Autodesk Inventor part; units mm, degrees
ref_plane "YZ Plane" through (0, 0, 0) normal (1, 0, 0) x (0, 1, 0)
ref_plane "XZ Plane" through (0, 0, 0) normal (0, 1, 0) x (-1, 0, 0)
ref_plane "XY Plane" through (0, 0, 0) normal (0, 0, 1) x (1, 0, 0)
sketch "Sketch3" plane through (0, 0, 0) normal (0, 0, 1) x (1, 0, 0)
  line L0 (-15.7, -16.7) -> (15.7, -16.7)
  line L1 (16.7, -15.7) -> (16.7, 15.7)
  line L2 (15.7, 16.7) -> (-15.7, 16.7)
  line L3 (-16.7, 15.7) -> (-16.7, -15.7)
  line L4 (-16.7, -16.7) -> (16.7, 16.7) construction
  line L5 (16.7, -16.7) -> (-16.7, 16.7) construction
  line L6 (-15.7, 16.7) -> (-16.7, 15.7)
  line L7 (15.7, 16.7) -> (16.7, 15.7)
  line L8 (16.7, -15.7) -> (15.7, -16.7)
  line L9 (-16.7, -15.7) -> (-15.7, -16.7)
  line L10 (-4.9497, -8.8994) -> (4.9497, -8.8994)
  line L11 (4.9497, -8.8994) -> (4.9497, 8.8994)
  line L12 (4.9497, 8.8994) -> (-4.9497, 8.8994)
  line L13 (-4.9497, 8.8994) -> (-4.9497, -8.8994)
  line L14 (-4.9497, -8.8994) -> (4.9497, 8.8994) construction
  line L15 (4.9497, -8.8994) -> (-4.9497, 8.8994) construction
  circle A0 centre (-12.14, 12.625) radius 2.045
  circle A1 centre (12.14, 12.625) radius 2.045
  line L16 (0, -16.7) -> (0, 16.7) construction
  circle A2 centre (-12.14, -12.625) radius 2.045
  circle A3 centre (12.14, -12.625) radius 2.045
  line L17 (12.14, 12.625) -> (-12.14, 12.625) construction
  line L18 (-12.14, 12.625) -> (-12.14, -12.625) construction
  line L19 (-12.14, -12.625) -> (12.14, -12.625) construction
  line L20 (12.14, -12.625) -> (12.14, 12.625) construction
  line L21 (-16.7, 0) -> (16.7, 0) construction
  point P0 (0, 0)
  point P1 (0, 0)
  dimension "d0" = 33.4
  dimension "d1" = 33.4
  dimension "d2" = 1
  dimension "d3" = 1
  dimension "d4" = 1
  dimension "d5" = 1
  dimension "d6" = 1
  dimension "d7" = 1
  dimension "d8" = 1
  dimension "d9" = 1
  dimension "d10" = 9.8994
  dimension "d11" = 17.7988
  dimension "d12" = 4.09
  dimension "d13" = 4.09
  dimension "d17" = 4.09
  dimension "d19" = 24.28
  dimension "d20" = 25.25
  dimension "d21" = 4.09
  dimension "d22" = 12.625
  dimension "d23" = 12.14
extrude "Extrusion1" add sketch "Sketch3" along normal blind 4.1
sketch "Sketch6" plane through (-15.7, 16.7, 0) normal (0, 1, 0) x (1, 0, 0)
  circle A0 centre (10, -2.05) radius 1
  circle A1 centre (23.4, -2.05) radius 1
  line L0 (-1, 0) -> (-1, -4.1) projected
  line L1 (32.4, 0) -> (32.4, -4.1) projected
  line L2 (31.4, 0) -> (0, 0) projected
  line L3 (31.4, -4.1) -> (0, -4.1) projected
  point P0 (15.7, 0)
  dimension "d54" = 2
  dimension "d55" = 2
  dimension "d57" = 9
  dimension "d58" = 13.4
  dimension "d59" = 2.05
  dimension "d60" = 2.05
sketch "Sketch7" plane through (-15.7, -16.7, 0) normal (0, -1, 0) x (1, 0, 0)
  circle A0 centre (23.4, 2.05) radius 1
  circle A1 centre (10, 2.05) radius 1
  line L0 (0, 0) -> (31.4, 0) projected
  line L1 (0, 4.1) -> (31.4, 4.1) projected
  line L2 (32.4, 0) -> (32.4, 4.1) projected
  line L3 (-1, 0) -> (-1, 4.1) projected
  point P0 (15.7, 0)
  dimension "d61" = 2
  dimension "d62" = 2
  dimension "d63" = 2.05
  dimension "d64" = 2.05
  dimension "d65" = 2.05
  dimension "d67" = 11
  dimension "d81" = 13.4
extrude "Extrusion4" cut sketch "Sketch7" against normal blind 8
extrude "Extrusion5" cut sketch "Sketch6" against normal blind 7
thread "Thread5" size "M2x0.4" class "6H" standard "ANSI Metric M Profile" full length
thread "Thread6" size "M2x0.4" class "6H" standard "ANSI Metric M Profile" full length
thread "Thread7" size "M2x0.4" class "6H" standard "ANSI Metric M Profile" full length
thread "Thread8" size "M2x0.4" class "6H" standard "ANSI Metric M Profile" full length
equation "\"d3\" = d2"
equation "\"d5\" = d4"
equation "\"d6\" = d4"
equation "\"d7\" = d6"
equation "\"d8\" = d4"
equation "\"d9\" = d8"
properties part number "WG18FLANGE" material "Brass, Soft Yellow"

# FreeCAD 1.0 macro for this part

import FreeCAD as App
import Part
import Sketcher

V = App.Vector
Q = App.Units.Quantity


def add_polygon(sketch, points):
    """Adds a closed chain of lines whose ends are joined by coincident constraints."""
    first, n = sketch.GeometryCount, len(points)
    for a, b in zip(points, points[1:] + points[:1]):
        sketch.addGeometry(Part.LineSegment(App.Vector(*a, 0), App.Vector(*b, 0)), False)
    for i in range(n):
        sketch.addConstraint(Sketcher.Constraint("Coincident", first + i, 2, first + (i + 1) % n, 1))

doc = App.newDocument("Part")
body = doc.addObject("PartDesign::Body", "Body")

# Sketch on XY plane
sketch1 = body.newObject("Sketcher::SketchObject", "Sketch")
sketch1.AttachmentSupport = (doc.getObject("XY_Plane"), [""])
sketch1.MapMode = "FlatFace"
add_polygon(sketch1, [(-16.7, -15.7), (-15.7, -16.7), (15.7, -16.7), (16.7, -15.7), (16.7, 15.7), (15.7, 16.7), (-15.7, 16.7), (-16.7, 15.7)])  # lines 0-7
sketch1.addGeometry(Part.Circle(V(-12.1, -12.6, 0), V(0, 0, 1), 2), False)  # 8
sketch1.addGeometry(Part.Circle(V(12.1, -12.6, 0), V(0, 0, 1), 2), False)  # 9
sketch1.addGeometry(Part.Circle(V(-12.1, 12.6, 0), V(0, 0, 1), 2), False)  # 10
add_polygon(sketch1, [(4.9, -8.9), (-4.9, -8.9), (-4.9, 8.9), (4.9, 8.9)])  # lines 11-14
sketch1.addGeometry(Part.Circle(V(12.1, 12.6, 0), V(0, 0, 1), 2), False)  # 15
sketch1.addConstraint([
    Sketcher.Constraint("Horizontal", 1),
    Sketcher.Constraint("Vertical", 3),
    Sketcher.Constraint("Horizontal", 5),
    Sketcher.Constraint("Vertical", 7),
    Sketcher.Constraint("Horizontal", 11),
    Sketcher.Constraint("Vertical", 12),
    Sketcher.Constraint("Horizontal", 13),
    Sketcher.Constraint("Vertical", 14),
    Sketcher.Constraint("Equal", 8, 9),
    Sketcher.Constraint("Equal", 9, 10),
    Sketcher.Constraint("Equal", 10, 15),
    Sketcher.Constraint("Symmetric", 9, 3, 10, 3, -1, 1),
    Sketcher.Constraint("Symmetric", 8, 3, 15, 3, -1, 1),
    Sketcher.Constraint("Symmetric", 0, 2, 4, 2, -1, 1),
    Sketcher.Constraint("Symmetric", 2, 2, 6, 2, -1, 1),
    Sketcher.Constraint("Symmetric", 11, 2, 13, 2, -1, 1),
    Sketcher.Constraint("Symmetric", 8, 3, 9, 3, -2),
    Sketcher.Constraint("Perpendicular", 0, 2),
    Sketcher.Constraint("Perpendicular", 2, 4),
    Sketcher.Constraint("Perpendicular", 4, 6),
    Sketcher.Constraint("Horizontal", 3, 2, 6, 2),
    Sketcher.Constraint("Vertical", 1, 2, 4, 2),
    Sketcher.Constraint("Equal", 5, 3),
    Sketcher.Constraint("Diameter", 8, Q("4.09 mm")),
    Sketcher.Constraint("DistanceX", 1, 2, 2, 2, Q("1 mm")),
    Sketcher.Constraint("DistanceX", 8, 3, -1, 1, Q("12.14 mm")),
    Sketcher.Constraint("DistanceY", 8, 3, 10, 3, Q("25.25 mm")),
    Sketcher.Constraint("DistanceX", 1, 1, 1, 2, Q("31.4 mm")),
    Sketcher.Constraint("DistanceX", 11, 2, 11, 1, Q("9.8994 mm")),
    Sketcher.Constraint("DistanceY", 12, 1, 12, 2, Q("17.7988 mm")),
])
pad1 = body.newObject("PartDesign::Pad", "Pad")
pad1.Profile = sketch1
pad1.Length = 4.1

# Sketch on XZ plane
sketch2 = body.newObject("Sketcher::SketchObject", "Sketch001")
sketch2.AttachmentSupport = (doc.getObject("XZ_Plane"), [""])
sketch2.MapMode = "FlatFace"
sketch2.AttachmentOffset = App.Placement(V(0, 0, 16.7), App.Rotation())
sketch2.addGeometry([
    Part.Circle(V(7.7, 2, 0), V(0, 0, 1), 1),
    Part.Circle(V(-5.7, 2, 0), V(0, 0, 1), 1),
], False)
sketch2.addConstraint([
    Sketcher.Constraint("Equal", 0, 1),
    Sketcher.Constraint("Horizontal", 0, 3, 1, 3),
    Sketcher.Constraint("Diameter", 0, Q("2 mm")),
    Sketcher.Constraint("DistanceX", 1, 3, 0, 3, Q("13.4 mm")),
    Sketcher.Constraint("DistanceY", -1, 1, 0, 3, Q("2.05 mm")),
    Sketcher.Constraint("DistanceX", -1, 1, 0, 3, Q("7.7 mm")),
])
pocket1 = body.newObject("PartDesign::Pocket", "Pocket")
pocket1.Profile = sketch2
pocket1.Length = 8

# Sketch on XZ plane
sketch3 = body.newObject("Sketcher::SketchObject", "Sketch002")
sketch3.AttachmentSupport = (doc.getObject("XZ_Plane"), [""])
sketch3.MapMode = "FlatFace"
sketch3.AttachmentOffset = App.Placement(V(0, 0, -16.7), App.Rotation())
sketch3.addGeometry([
    Part.Circle(V(-5.7, 2, 0), V(0, 0, 1), 1),
    Part.Circle(V(7.7, 2, 0), V(0, 0, 1), 1),
], False)
sketch3.addConstraint([
    Sketcher.Constraint("Equal", 0, 1),
    Sketcher.Constraint("Horizontal", 0, 3, 1, 3),
    Sketcher.Constraint("Diameter", 0, Q("2 mm")),
    Sketcher.Constraint("DistanceX", 0, 3, 1, 3, Q("13.4 mm")),
    Sketcher.Constraint("DistanceY", -1, 1, 0, 3, Q("2.05 mm")),
    Sketcher.Constraint("DistanceX", 0, 3, -1, 1, Q("5.7 mm")),
])
pocket2 = body.newObject("PartDesign::Pocket", "Pocket001")
pocket2.Profile = sketch3
pocket2.Length = 7
pocket2.Reversed = True

doc.recompute()
